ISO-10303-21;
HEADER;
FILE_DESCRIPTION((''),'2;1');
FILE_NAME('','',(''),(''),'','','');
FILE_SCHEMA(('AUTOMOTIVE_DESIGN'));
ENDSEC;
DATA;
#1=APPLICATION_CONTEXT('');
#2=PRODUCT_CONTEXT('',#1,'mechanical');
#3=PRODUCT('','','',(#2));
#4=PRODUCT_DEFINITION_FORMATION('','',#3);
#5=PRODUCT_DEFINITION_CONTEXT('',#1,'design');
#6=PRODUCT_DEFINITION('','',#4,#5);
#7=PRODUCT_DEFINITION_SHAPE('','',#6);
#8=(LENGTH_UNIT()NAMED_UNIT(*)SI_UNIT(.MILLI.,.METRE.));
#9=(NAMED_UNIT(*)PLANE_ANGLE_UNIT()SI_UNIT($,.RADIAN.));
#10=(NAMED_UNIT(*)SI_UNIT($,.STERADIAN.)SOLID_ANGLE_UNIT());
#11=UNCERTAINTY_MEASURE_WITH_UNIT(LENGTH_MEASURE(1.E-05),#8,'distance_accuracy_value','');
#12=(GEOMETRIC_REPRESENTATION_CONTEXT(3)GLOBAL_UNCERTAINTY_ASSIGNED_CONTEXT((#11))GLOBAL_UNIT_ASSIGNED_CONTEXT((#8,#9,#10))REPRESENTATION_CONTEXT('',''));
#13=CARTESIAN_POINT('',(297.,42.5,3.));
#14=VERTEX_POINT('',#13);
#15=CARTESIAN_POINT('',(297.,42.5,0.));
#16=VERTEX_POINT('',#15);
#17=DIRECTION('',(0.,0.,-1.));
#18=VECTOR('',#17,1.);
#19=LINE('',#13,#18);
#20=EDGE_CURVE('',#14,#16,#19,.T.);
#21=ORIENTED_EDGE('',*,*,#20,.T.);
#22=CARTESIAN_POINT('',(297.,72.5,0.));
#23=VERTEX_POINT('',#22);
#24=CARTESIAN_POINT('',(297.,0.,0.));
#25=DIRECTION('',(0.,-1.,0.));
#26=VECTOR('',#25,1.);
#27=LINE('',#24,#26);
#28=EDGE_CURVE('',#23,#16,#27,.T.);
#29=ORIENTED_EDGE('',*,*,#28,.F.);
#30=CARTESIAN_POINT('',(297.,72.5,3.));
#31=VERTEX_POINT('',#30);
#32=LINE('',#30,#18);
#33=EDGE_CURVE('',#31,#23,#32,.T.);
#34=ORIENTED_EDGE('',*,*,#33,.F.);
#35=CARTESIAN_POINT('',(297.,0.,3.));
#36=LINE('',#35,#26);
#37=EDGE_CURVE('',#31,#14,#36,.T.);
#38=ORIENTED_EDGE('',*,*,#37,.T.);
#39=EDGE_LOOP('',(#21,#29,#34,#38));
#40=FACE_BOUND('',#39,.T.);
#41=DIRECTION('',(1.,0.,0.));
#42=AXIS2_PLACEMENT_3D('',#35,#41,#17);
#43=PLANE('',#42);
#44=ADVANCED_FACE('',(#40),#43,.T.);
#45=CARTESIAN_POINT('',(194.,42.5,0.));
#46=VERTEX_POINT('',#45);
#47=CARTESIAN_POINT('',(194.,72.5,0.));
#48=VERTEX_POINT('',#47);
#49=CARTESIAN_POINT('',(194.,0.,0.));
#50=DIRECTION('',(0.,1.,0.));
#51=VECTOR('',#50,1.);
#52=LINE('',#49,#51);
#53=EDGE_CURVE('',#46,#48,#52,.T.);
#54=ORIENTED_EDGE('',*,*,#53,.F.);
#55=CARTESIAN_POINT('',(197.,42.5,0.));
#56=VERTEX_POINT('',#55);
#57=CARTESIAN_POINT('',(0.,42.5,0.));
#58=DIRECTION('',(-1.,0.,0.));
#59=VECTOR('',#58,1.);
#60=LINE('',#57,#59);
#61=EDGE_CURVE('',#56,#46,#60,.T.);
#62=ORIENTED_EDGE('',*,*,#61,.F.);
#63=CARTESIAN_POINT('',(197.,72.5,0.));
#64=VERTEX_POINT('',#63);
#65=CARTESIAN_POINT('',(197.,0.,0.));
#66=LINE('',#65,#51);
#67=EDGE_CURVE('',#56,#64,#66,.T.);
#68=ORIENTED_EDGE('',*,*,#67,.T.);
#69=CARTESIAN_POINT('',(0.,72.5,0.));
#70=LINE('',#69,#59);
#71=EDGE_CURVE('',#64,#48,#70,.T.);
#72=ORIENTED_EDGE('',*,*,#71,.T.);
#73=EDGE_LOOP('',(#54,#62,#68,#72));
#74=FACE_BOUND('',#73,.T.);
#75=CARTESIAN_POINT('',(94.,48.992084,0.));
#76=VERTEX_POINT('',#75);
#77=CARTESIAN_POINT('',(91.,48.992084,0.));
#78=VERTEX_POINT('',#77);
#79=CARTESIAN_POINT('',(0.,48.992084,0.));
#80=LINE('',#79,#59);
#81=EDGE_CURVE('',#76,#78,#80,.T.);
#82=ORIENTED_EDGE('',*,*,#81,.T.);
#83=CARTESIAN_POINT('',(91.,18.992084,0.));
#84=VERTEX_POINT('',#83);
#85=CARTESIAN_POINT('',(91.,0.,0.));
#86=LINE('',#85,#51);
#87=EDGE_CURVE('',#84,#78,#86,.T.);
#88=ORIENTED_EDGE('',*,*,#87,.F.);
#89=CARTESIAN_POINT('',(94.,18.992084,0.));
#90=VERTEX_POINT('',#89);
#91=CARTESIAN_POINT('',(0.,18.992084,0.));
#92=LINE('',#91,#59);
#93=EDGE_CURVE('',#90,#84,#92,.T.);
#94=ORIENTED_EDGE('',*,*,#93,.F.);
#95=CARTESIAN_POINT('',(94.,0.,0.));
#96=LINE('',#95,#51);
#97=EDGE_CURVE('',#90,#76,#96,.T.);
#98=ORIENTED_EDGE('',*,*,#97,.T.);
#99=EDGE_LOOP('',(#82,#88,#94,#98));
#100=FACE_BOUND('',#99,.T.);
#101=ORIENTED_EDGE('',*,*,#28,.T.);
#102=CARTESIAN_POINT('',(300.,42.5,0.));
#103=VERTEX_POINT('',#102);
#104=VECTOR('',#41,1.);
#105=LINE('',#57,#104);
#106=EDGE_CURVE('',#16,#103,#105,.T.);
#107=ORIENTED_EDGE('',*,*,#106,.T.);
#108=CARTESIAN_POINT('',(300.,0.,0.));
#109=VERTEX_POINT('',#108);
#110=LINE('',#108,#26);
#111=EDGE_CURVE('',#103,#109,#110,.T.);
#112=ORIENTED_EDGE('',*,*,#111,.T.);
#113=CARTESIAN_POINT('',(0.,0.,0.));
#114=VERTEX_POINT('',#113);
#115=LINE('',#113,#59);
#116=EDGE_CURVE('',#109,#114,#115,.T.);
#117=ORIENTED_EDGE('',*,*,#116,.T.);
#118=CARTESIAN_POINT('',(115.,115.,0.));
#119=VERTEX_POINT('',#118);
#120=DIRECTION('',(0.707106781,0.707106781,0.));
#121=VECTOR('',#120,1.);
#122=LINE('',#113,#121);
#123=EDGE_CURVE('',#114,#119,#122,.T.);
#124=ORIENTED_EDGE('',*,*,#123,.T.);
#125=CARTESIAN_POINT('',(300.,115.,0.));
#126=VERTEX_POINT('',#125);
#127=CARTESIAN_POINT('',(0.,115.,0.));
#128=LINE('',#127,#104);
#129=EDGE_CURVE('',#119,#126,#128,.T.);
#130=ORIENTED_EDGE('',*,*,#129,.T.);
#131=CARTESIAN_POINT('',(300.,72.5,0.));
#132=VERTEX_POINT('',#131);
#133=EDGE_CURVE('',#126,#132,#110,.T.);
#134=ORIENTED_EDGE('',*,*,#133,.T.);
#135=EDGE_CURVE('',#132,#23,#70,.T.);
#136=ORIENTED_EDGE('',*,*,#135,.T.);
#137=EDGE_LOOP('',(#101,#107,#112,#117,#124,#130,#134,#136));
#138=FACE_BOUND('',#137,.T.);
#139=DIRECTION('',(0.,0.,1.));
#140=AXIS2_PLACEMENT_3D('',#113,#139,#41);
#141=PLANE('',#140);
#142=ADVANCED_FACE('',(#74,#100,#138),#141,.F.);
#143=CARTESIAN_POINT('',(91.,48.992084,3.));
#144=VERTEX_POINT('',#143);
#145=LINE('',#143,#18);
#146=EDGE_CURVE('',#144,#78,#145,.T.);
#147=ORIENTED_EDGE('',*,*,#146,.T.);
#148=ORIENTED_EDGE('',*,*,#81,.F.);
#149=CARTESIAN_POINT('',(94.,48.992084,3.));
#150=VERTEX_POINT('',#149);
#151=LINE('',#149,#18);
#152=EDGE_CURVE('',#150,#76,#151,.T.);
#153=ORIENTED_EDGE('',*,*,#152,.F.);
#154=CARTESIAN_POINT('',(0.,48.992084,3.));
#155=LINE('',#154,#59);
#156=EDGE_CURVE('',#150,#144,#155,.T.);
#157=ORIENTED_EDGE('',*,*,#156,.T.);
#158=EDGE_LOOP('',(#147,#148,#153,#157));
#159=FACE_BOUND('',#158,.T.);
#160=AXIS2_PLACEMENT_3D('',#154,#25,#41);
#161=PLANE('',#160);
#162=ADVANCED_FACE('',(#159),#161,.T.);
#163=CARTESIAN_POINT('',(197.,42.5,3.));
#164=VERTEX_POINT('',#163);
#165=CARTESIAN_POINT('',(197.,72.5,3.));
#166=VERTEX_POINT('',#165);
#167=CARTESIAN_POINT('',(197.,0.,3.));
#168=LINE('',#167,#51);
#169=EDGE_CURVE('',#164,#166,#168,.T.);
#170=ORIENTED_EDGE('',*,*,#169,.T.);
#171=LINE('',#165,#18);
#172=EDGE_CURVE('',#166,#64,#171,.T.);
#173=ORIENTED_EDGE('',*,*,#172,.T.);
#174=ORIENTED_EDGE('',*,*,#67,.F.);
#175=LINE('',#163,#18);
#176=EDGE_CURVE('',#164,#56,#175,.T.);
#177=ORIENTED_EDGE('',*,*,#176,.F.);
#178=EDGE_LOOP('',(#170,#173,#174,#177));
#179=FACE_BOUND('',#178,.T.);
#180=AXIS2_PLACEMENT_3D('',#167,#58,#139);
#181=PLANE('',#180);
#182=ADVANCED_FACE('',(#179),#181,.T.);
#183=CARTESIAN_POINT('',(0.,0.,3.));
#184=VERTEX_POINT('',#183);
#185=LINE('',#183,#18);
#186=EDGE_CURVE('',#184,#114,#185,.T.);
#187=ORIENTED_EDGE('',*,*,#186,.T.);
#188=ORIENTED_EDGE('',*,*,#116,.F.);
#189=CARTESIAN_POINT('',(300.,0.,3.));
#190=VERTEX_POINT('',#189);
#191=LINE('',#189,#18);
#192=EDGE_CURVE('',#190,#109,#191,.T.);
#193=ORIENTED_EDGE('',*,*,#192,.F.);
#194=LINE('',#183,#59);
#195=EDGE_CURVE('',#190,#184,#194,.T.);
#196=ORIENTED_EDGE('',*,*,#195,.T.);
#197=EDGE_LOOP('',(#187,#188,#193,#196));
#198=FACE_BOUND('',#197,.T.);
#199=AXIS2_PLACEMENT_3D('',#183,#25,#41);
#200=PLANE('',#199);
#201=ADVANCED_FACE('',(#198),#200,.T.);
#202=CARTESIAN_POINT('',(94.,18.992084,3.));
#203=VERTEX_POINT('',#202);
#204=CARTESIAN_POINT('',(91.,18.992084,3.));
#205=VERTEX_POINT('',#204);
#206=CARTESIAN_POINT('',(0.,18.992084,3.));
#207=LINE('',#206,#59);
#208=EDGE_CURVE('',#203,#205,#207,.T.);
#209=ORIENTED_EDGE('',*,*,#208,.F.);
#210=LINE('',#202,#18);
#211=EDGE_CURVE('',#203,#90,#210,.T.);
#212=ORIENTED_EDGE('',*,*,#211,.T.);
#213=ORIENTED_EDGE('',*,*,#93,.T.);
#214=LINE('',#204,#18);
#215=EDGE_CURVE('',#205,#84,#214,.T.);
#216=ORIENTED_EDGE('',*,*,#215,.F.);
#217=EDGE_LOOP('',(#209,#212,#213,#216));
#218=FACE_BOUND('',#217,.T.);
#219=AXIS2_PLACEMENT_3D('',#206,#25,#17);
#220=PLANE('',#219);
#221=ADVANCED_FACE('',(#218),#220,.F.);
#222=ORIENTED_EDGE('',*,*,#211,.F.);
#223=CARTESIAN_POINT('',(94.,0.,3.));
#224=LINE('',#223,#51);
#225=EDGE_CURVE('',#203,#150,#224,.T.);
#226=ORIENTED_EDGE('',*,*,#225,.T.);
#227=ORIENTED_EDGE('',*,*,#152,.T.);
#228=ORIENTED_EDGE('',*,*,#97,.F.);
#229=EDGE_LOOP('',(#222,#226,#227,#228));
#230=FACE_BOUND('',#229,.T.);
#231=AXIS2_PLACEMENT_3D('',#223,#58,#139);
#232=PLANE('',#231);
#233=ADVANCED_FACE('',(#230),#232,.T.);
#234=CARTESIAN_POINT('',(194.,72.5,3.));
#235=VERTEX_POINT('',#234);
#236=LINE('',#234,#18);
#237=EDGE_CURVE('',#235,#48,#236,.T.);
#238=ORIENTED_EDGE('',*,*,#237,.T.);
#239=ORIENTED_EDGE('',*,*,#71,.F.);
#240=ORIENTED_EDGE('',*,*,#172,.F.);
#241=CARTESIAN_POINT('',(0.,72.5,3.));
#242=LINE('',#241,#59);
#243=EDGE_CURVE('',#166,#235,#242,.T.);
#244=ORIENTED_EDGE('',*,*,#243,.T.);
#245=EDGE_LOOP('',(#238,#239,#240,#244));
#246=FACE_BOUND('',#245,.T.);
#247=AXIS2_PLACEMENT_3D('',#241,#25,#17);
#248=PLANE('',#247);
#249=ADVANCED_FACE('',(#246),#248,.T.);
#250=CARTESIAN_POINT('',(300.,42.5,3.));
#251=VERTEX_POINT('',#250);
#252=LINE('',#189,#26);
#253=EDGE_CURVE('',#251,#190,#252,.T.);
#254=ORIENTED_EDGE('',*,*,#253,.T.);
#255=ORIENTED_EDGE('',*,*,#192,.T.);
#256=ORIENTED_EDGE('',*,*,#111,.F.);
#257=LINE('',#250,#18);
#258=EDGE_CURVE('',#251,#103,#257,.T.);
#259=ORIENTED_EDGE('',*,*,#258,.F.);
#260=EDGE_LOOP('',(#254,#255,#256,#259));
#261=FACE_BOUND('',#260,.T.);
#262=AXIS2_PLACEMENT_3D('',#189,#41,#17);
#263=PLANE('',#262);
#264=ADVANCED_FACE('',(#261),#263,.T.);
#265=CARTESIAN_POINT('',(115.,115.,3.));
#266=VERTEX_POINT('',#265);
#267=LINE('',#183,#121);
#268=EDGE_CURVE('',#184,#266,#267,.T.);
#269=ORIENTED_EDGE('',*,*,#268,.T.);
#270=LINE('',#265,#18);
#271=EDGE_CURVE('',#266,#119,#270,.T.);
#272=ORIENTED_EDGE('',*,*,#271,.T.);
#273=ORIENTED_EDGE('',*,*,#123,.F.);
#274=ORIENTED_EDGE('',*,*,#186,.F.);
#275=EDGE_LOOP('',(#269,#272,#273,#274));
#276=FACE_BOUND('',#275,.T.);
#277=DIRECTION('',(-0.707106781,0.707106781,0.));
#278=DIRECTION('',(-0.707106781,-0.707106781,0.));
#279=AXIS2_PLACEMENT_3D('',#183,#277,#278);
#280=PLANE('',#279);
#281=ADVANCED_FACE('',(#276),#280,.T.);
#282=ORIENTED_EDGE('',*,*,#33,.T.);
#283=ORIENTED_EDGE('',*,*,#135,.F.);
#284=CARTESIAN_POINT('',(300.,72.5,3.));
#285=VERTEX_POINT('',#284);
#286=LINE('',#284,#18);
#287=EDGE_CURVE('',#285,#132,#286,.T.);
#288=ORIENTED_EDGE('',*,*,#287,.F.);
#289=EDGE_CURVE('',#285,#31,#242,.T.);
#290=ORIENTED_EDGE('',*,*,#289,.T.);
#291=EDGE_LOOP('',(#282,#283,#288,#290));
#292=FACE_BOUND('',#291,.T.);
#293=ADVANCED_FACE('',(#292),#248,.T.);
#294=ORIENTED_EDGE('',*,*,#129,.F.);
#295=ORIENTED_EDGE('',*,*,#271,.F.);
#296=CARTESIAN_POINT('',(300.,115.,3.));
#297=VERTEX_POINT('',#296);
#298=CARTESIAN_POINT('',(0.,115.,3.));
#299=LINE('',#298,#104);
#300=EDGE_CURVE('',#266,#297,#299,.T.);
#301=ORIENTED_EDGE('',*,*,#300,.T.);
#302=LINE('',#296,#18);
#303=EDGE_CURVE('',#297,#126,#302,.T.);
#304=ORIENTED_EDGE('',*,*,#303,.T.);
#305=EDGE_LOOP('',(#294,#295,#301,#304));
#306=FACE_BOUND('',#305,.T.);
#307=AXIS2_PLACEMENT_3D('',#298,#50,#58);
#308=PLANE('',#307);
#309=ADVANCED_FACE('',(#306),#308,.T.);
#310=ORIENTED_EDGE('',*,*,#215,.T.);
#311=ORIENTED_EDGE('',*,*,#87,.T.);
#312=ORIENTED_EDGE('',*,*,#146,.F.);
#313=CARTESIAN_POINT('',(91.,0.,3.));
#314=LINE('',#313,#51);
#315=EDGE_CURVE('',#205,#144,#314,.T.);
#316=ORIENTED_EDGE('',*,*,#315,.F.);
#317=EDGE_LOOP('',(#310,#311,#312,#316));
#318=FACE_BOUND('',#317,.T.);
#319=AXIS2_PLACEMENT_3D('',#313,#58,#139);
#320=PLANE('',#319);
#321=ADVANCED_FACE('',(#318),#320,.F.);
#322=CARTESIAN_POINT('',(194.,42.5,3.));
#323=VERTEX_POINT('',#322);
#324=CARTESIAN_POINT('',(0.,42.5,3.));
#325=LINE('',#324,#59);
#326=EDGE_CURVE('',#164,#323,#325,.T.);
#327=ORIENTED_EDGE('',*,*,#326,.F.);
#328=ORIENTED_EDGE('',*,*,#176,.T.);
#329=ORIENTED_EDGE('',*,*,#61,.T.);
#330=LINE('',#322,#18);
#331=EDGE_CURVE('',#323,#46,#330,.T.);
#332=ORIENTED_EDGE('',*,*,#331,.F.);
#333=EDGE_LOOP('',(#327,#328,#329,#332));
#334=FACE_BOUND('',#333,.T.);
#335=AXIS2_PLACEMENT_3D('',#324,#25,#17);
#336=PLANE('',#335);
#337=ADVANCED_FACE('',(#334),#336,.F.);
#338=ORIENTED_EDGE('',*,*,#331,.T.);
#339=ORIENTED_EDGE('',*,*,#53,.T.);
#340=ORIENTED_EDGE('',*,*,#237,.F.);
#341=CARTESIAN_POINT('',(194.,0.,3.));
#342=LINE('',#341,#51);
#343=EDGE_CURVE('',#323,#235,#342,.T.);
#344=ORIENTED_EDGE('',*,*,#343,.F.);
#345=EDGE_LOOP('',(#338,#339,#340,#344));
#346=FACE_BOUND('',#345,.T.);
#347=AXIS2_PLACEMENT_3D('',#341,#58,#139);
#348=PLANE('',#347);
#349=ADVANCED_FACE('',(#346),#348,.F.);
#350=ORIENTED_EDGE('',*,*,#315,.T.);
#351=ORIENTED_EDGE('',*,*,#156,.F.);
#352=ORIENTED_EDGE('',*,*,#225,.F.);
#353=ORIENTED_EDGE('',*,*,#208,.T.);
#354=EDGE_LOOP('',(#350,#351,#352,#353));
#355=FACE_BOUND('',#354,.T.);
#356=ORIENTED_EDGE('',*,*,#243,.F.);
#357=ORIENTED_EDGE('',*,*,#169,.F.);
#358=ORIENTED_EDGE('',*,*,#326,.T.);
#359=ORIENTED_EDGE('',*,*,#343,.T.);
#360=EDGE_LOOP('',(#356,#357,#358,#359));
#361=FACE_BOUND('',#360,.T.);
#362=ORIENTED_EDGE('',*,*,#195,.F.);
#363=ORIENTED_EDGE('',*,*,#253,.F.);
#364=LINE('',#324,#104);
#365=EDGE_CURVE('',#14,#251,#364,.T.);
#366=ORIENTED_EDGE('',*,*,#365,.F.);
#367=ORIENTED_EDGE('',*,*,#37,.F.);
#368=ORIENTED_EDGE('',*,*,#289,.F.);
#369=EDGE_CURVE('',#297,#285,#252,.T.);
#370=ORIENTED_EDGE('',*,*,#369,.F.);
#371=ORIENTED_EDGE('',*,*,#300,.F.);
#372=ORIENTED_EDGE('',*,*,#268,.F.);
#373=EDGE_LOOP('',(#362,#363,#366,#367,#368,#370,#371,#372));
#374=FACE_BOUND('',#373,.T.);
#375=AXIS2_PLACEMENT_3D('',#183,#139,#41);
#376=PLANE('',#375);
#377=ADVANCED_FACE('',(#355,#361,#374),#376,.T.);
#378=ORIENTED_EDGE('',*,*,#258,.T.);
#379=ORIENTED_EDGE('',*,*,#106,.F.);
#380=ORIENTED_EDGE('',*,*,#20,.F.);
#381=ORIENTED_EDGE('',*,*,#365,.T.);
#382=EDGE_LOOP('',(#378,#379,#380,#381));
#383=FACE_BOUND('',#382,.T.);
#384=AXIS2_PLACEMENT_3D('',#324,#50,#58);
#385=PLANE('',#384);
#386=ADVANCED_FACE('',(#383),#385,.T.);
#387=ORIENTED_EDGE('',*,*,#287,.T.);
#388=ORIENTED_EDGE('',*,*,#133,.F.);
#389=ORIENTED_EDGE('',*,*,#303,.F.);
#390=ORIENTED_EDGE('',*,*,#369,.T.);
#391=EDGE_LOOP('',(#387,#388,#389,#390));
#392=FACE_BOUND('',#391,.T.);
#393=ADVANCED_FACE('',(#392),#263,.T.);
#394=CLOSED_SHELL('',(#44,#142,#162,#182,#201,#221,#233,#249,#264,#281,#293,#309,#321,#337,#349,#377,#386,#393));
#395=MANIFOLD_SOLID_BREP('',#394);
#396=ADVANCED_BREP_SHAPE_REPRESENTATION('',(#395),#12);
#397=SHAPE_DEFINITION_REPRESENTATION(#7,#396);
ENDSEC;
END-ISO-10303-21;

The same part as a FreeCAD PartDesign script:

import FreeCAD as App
import Part
import Sketcher
from FreeCAD import Vector
Q = App.Units.Quantity

doc = App.newDocument("Part")
body = doc.addObject("PartDesign::Body", "Body")

sketch1 = doc.addObject("Sketcher::SketchObject", "Sketch")
body.addObject(sketch1)
sketch1.AttachmentSupport = (doc.XY_Plane, [""])
sketch1.MapMode = "FlatFace"
sketch1.addGeometry(Part.LineSegment(Vector(300, 0, 0), Vector(300, 42.5, 0)), False)
sketch1.addGeometry(Part.LineSegment(Vector(300, 42.5, 0), Vector(297, 42.5, 0)), False)
sketch1.addGeometry(Part.LineSegment(Vector(297, 42.5, 0), Vector(297, 72.5, 0)), False)
sketch1.addGeometry(Part.LineSegment(Vector(297, 72.5, 0), Vector(300, 72.5, 0)), False)
sketch1.addGeometry(Part.LineSegment(Vector(300, 72.5, 0), Vector(300, 115, 0)), False)
sketch1.addGeometry(Part.LineSegment(Vector(300, 115, 0), Vector(115, 115, 0)), False)
sketch1.addGeometry(Part.LineSegment(Vector(115, 115, 0), Vector(0, 0, 0)), False)
sketch1.addGeometry(Part.LineSegment(Vector(0, 0, 0), Vector(300, 0, 0)), False)
sketch1.addGeometry(Part.LineSegment(Vector(91, 18.992084, 0), Vector(91, 48.992084, 0)), False)
sketch1.addGeometry(Part.LineSegment(Vector(91, 48.992084, 0), Vector(94, 48.992084, 0)), False)
sketch1.addGeometry(Part.LineSegment(Vector(94, 48.992084, 0), Vector(94, 18.992084, 0)), False)
sketch1.addGeometry(Part.LineSegment(Vector(94, 18.992084, 0), Vector(91, 18.992084, 0)), False)
sketch1.addGeometry(Part.LineSegment(Vector(194, 42.5, 0), Vector(194, 72.5, 0)), False)
sketch1.addGeometry(Part.LineSegment(Vector(194, 72.5, 0), Vector(197, 72.5, 0)), False)
sketch1.addGeometry(Part.LineSegment(Vector(197, 72.5, 0), Vector(197, 42.5, 0)), False)
sketch1.addGeometry(Part.LineSegment(Vector(197, 42.5, 0), Vector(194, 42.5, 0)), False)
sketch1.addConstraint(Sketcher.Constraint("Coincident", 0, 2, 1, 1))
sketch1.addConstraint(Sketcher.Constraint("Coincident", 1, 2, 2, 1))
sketch1.addConstraint(Sketcher.Constraint("Coincident", 2, 2, 3, 1))
sketch1.addConstraint(Sketcher.Constraint("Coincident", 3, 2, 4, 1))
sketch1.addConstraint(Sketcher.Constraint("Coincident", 4, 2, 5, 1))
sketch1.addConstraint(Sketcher.Constraint("Coincident", 5, 2, 6, 1))
sketch1.addConstraint(Sketcher.Constraint("Coincident", 6, 2, 7, 1))
sketch1.addConstraint(Sketcher.Constraint("Coincident", 7, 2, 0, 1))
sketch1.addConstraint(Sketcher.Constraint("Coincident", 8, 2, 9, 1))
sketch1.addConstraint(Sketcher.Constraint("Coincident", 9, 2, 10, 1))
sketch1.addConstraint(Sketcher.Constraint("Coincident", 10, 2, 11, 1))
sketch1.addConstraint(Sketcher.Constraint("Coincident", 11, 2, 8, 1))
sketch1.addConstraint(Sketcher.Constraint("Coincident", 12, 2, 13, 1))
sketch1.addConstraint(Sketcher.Constraint("Coincident", 13, 2, 14, 1))
sketch1.addConstraint(Sketcher.Constraint("Coincident", 14, 2, 15, 1))
sketch1.addConstraint(Sketcher.Constraint("Coincident", 15, 2, 12, 1))
sketch1.addConstraint(Sketcher.Constraint("Vertical", 0))
sketch1.addConstraint(Sketcher.Constraint("Horizontal", 1))
sketch1.addConstraint(Sketcher.Constraint("Vertical", 2))
sketch1.addConstraint(Sketcher.Constraint("Horizontal", 3))
sketch1.addConstraint(Sketcher.Constraint("Vertical", 4))
sketch1.addConstraint(Sketcher.Constraint("Horizontal", 5))
sketch1.addConstraint(Sketcher.Constraint("Horizontal", 7))
sketch1.addConstraint(Sketcher.Constraint("Vertical", 8))
sketch1.addConstraint(Sketcher.Constraint("Horizontal", 9))
sketch1.addConstraint(Sketcher.Constraint("Vertical", 10))
sketch1.addConstraint(Sketcher.Constraint("Horizontal", 11))
sketch1.addConstraint(Sketcher.Constraint("Vertical", 12))
sketch1.addConstraint(Sketcher.Constraint("Horizontal", 13))
sketch1.addConstraint(Sketcher.Constraint("Vertical", 14))
sketch1.addConstraint(Sketcher.Constraint("Horizontal", 15))
sketch1.addConstraint(Sketcher.Constraint("Coincident", 6, 2, -1, 1))
sketch1.addConstraint(Sketcher.Constraint("Horizontal", 3, 2, 12, 2))
sketch1.addConstraint(Sketcher.Constraint("Horizontal", 1, 2, 14, 2))
sketch1.addConstraint(Sketcher.Constraint("Vertical", 0, 2, 3, 2))
sketch1.addConstraint(Sketcher.Constraint("Equal", 3, 9))
sketch1.addConstraint(Sketcher.Constraint("Equal", 11, 13))
sketch1.addConstraint(Sketcher.Constraint("Equal", 0, 4))
sketch1.addConstraint(Sketcher.Constraint("Equal", 2, 8))
sketch1.addConstraint(Sketcher.Constraint("DistanceX", 1, 2, 1, 1, 3.0))
sketch1.addConstraint(Sketcher.Constraint("DistanceX", 5, 2, 5, 1, 185.0))
sketch1.addConstraint(Sketcher.Constraint("DistanceX", 7, 1, 7, 2, 300.0))
sketch1.addConstraint(Sketcher.Constraint("DistanceY", 2, 1, 2, 2, 30.0))
sketch1.addConstraint(Sketcher.Constraint("Angle", 6, Q("-135 deg")))
sketch1.addConstraint(Sketcher.Constraint("DistanceX", -1, 1, 8, 2, 91.0))
sketch1.addConstraint(Sketcher.Constraint("DistanceX", -1, 1, 12, 2, 194.0))
sketch1.addConstraint(Sketcher.Constraint("DistanceY", -1, 1, 8, 2, 48.992084))
pad1 = doc.addObject("PartDesign::Pad", "Pad")
body.addObject(pad1)
pad1.Profile = sketch1
pad1.Length = 3

doc.recompute()
